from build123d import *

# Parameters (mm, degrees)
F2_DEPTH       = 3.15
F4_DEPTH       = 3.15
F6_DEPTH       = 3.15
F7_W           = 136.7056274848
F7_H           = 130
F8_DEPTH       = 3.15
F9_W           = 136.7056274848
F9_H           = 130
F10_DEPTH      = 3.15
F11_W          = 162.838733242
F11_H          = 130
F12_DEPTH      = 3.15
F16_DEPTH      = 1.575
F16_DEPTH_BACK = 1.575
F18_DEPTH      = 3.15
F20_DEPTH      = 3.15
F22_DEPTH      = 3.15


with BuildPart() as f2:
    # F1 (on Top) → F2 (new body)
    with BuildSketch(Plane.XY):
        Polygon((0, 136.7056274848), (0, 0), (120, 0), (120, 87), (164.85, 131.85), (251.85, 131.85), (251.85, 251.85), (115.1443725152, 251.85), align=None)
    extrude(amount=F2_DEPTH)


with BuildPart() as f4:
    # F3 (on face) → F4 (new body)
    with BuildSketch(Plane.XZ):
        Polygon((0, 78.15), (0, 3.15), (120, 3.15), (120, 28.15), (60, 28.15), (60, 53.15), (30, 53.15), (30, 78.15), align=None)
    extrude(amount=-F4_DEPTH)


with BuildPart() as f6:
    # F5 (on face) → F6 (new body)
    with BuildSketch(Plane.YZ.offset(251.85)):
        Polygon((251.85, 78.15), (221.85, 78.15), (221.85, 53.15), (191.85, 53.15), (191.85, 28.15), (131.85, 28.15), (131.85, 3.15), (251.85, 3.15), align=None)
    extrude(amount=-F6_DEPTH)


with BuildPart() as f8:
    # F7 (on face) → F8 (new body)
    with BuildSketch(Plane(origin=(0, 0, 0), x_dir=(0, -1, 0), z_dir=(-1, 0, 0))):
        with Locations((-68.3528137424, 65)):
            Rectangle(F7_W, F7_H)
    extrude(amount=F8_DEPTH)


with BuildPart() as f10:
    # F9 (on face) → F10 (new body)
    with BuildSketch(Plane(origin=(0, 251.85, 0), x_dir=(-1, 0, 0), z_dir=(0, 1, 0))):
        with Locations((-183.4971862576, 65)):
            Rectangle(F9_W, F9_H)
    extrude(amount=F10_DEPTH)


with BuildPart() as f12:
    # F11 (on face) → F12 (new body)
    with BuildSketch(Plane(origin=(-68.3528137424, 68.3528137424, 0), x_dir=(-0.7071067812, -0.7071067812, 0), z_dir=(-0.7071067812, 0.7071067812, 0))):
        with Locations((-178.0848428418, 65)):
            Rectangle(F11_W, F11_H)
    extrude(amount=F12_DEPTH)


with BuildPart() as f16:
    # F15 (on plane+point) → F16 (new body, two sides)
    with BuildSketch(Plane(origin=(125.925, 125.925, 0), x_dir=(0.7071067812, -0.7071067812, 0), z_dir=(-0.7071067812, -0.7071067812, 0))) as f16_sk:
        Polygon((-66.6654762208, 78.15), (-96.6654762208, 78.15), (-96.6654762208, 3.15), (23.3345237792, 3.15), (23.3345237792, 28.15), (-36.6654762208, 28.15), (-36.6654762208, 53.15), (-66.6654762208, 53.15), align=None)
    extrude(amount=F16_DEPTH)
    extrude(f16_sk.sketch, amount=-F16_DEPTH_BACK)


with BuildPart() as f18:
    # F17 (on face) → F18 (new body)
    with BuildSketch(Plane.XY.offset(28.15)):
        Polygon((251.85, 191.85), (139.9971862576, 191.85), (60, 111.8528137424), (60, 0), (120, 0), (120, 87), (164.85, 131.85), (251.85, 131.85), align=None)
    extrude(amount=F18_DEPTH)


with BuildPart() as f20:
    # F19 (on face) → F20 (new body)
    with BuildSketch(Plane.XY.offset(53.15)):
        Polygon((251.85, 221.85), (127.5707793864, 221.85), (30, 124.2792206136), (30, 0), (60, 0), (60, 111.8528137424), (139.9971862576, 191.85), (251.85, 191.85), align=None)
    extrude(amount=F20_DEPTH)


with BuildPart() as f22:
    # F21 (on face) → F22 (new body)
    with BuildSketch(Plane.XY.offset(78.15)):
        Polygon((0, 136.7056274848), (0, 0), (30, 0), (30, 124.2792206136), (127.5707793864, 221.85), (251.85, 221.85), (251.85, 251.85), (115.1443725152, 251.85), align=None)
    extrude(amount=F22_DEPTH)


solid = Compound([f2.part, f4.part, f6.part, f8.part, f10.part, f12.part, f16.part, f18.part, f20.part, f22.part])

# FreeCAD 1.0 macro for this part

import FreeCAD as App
import Part
import Sketcher
from FreeCAD import Vector

doc = App.newDocument("Part")
body = doc.addObject("PartDesign::Body", "Body")

# Sketch on XY plane
sketch1 = body.newObject("Sketcher::SketchObject", "Sketch")
sketch1.AttachmentSupport = (doc.getObject("XY_Plane"), [""])
sketch1.MapMode = "FlatFace"
sketch1.addGeometry([
    Part.LineSegment(Vector(0, 137, 0), Vector(0, 0, 0)),  # 0
    Part.LineSegment(Vector(0, 0, 0), Vector(120, 0, 0)),  # 1
    Part.LineSegment(Vector(120, 0, 0), Vector(120, 87, 0)),  # 2
    Part.LineSegment(Vector(120, 87, 0), Vector(165, 132, 0)),  # 3
    Part.LineSegment(Vector(165, 132, 0), Vector(252, 132, 0)),  # 4
    Part.LineSegment(Vector(252, 132, 0), Vector(252, 252, 0)),  # 5
    Part.LineSegment(Vector(252, 252, 0), Vector(115, 252, 0)),  # 6
    Part.LineSegment(Vector(115, 252, 0), Vector(0, 137, 0)),  # 7
], False)
sketch1.addConstraint([
    Sketcher.Constraint("Coincident", 0, 2, 1, 1),
    Sketcher.Constraint("Coincident", 1, 2, 2, 1),
    Sketcher.Constraint("Coincident", 2, 2, 3, 1),
    Sketcher.Constraint("Coincident", 3, 2, 4, 1),
    Sketcher.Constraint("Coincident", 4, 2, 5, 1),
    Sketcher.Constraint("Coincident", 5, 2, 6, 1),
    Sketcher.Constraint("Coincident", 6, 2, 7, 1),
    Sketcher.Constraint("Coincident", 7, 2, 0, 1),
    Sketcher.Constraint("Vertical", 0),
    Sketcher.Constraint("Horizontal", 1),
    Sketcher.Constraint("Vertical", 2),
    Sketcher.Constraint("Horizontal", 4),
    Sketcher.Constraint("Vertical", 5),
    Sketcher.Constraint("Horizontal", 6),
    Sketcher.Constraint("Coincident", 0, 2, -1, 1),
    Sketcher.Constraint("Parallel", 3, 7),
    Sketcher.Constraint("Equal", 6, 0),
    Sketcher.Constraint("Equal", 4, 2),
    Sketcher.Constraint("Equal", 1, 5),
    Sketcher.Constraint("DistanceX", 1, 1, 1, 2, 120.0),
    Sketcher.Constraint("DistanceX", 4, 1, 4, 2, 87.0),
    Sketcher.Constraint("DistanceX", -1, 1, 3, 2, 164.85),
    Sketcher.Constraint("DistanceX", 6, 2, 6, 1, 136.705627),
])
pad1 = body.newObject("PartDesign::Pad", "Pad")
pad1.Profile = sketch1
pad1.Length = 3.15
body2 = doc.addObject("PartDesign::Body", "Body001")

# Sketch on XZ plane
sketch2 = body2.newObject("Sketcher::SketchObject", "Sketch001")
sketch2.AttachmentSupport = (doc.getObject("XZ_Plane001"), [""])
sketch2.MapMode = "FlatFace"
sketch2.addGeometry([
    Part.LineSegment(Vector(0, 78, 0), Vector(0, 3, 0)),  # 0
    Part.LineSegment(Vector(0, 3, 0), Vector(120, 3, 0)),  # 1
    Part.LineSegment(Vector(120, 3, 0), Vector(120, 28, 0)),  # 2
    Part.LineSegment(Vector(120, 28, 0), Vector(60, 28, 0)),  # 3
    Part.LineSegment(Vector(60, 28, 0), Vector(60, 53, 0)),  # 4
    Part.LineSegment(Vector(60, 53, 0), Vector(30, 53, 0)),  # 5
    Part.LineSegment(Vector(30, 53, 0), Vector(30, 78, 0)),  # 6
    Part.LineSegment(Vector(30, 78, 0), Vector(0, 78, 0)),  # 7
], False)
sketch2.addConstraint([
    Sketcher.Constraint("Coincident", 0, 2, 1, 1),
    Sketcher.Constraint("Coincident", 1, 2, 2, 1),
    Sketcher.Constraint("Coincident", 2, 2, 3, 1),
    Sketcher.Constraint("Coincident", 3, 2, 4, 1),
    Sketcher.Constraint("Coincident", 4, 2, 5, 1),
    Sketcher.Constraint("Coincident", 5, 2, 6, 1),
    Sketcher.Constraint("Coincident", 6, 2, 7, 1),
    Sketcher.Constraint("Coincident", 7, 2, 0, 1),
    Sketcher.Constraint("Vertical", 0),
    Sketcher.Constraint("Horizontal", 1),
    Sketcher.Constraint("Vertical", 2),
    Sketcher.Constraint("Horizontal", 3),
    Sketcher.Constraint("Vertical", 4),
    Sketcher.Constraint("Horizontal", 5),
    Sketcher.Constraint("Vertical", 6),
    Sketcher.Constraint("Horizontal", 7),
    Sketcher.Constraint("PointOnObject", 0, 2, -2),
    Sketcher.Constraint("Equal", 5, 7),
    Sketcher.Constraint("Equal", 2, 4),
    Sketcher.Constraint("Equal", 4, 6),
    Sketcher.Constraint("DistanceX", 1, 1, 1, 2, 120.0),
    Sketcher.Constraint("DistanceX", 3, 2, 3, 1, 60.0),
    Sketcher.Constraint("DistanceY", 0, 2, 0, 1, 75.0),
    Sketcher.Constraint("DistanceY", -1, 1, 0, 2, 3.15),
])
pad2 = body2.newObject("PartDesign::Pad", "Pad001")
pad2.Profile = sketch2
pad2.Length = 3.15
pad2.Reversed = True
body3 = doc.addObject("PartDesign::Body", "Body002")

# Sketch on YZ plane
sketch3 = body3.newObject("Sketcher::SketchObject", "Sketch002")
sketch3.AttachmentSupport = (doc.getObject("YZ_Plane002"), [""])
sketch3.MapMode = "FlatFace"
sketch3.AttachmentOffset = App.Placement(Vector(0, 0, 251.85), App.Rotation())
sketch3.addGeometry([
    Part.LineSegment(Vector(252, 78, 0), Vector(222, 78, 0)),  # 0
    Part.LineSegment(Vector(222, 78, 0), Vector(222, 53, 0)),  # 1
    Part.LineSegment(Vector(222, 53, 0), Vector(192, 53, 0)),  # 2
    Part.LineSegment(Vector(192, 53, 0), Vector(192, 28, 0)),  # 3
    Part.LineSegment(Vector(192, 28, 0), Vector(132, 28, 0)),  # 4
    Part.LineSegment(Vector(132, 28, 0), Vector(132, 3, 0)),  # 5
    Part.LineSegment(Vector(132, 3, 0), Vector(252, 3, 0)),  # 6
    Part.LineSegment(Vector(252, 3, 0), Vector(252, 78, 0)),  # 7
], False)
sketch3.addConstraint([
    Sketcher.Constraint("Coincident", 0, 2, 1, 1),
    Sketcher.Constraint("Coincident", 1, 2, 2, 1),
    Sketcher.Constraint("Coincident", 2, 2, 3, 1),
    Sketcher.Constraint("Coincident", 3, 2, 4, 1),
    Sketcher.Constraint("Coincident", 4, 2, 5, 1),
    Sketcher.Constraint("Coincident", 5, 2, 6, 1),
    Sketcher.Constraint("Coincident", 6, 2, 7, 1),
    Sketcher.Constraint("Coincident", 7, 2, 0, 1),
    Sketcher.Constraint("Horizontal", 0),
    Sketcher.Constraint("Vertical", 1),
    Sketcher.Constraint("Horizontal", 2),
    Sketcher.Constraint("Vertical", 3),
    Sketcher.Constraint("Horizontal", 4),
    Sketcher.Constraint("Vertical", 5),
    Sketcher.Constraint("Horizontal", 6),
    Sketcher.Constraint("Vertical", 7),
    Sketcher.Constraint("Equal", 0, 2),
    Sketcher.Constraint("Equal", 1, 3),
    Sketcher.Constraint("Equal", 3, 5),
    Sketcher.Constraint("DistanceX", 0, 2, 0, 1, 30.0),
    Sketcher.Constraint("DistanceX", 4, 2, 4, 1, 60.0),
    Sketcher.Constraint("DistanceY", 1, 2, 1, 1, 25.0),
    Sketcher.Constraint("DistanceX", -1, 1, 0, 2, 221.85),
    Sketcher.Constraint("DistanceY", -1, 1, 0, 2, 78.15),
])
pad3 = body3.newObject("PartDesign::Pad", "Pad002")
pad3.Profile = sketch3
pad3.Length = 3.15
pad3.Reversed = True
body4 = doc.addObject("PartDesign::Body", "Body003")

# Sketch on YZ plane
sketch4 = body4.newObject("Sketcher::SketchObject", "Sketch003")
sketch4.AttachmentSupport = (doc.getObject("YZ_Plane003"), [""])
sketch4.MapMode = "FlatFace"
sketch4.addGeometry([
    Part.LineSegment(Vector(137, 130, 0), Vector(137, 0, 0)),
    Part.LineSegment(Vector(137, 0, 0), Vector(0, 0, 0)),
    Part.LineSegment(Vector(0, 0, 0), Vector(0, 130, 0)),
    Part.LineSegment(Vector(0, 130, 0), Vector(137, 130, 0)),
], False)
sketch4.addConstraint([
    Sketcher.Constraint("Coincident", 0, 2, 1, 1),
    Sketcher.Constraint("Coincident", 1, 2, 2, 1),
    Sketcher.Constraint("Coincident", 2, 2, 3, 1),
    Sketcher.Constraint("Coincident", 3, 2, 0, 1),
    Sketcher.Constraint("Vertical", 0),
    Sketcher.Constraint("Horizontal", 1),
    Sketcher.Constraint("Vertical", 2),
    Sketcher.Constraint("Horizontal", 3),
    Sketcher.Constraint("Coincident", 1, 2, -1, 1),
    Sketcher.Constraint("DistanceY", 0, 2, 0, 1, 130.0),
    Sketcher.Constraint("DistanceX", 1, 2, 1, 1, 136.705627),
])
pad4 = body4.newObject("PartDesign::Pad", "Pad003")
pad4.Profile = sketch4
pad4.Length = 3.15
pad4.Reversed = True
body5 = doc.addObject("PartDesign::Body", "Body004")

# Sketch on XZ plane
sketch5 = body5.newObject("Sketcher::SketchObject", "Sketch004")
sketch5.AttachmentSupport = (doc.getObject("XZ_Plane004"), [""])
sketch5.MapMode = "FlatFace"
sketch5.AttachmentOffset = App.Placement(Vector(0, 0, -251.85), App.Rotation())
sketch5.addGeometry([
    Part.LineSegment(Vector(252, 130, 0), Vector(252, 0, 0)),
    Part.LineSegment(Vector(252, 0, 0), Vector(115, 0, 0)),
    Part.LineSegment(Vector(115, 0, 0), Vector(115, 130, 0)),
    Part.LineSegment(Vector(115, 130, 0), Vector(252, 130, 0)),
], False)
sketch5.addConstraint([
    Sketcher.Constraint("Coincident", 0, 2, 1, 1),
    Sketcher.Constraint("Coincident", 1, 2, 2, 1),
    Sketcher.Constraint("Coincident", 2, 2, 3, 1),
    Sketcher.Constraint("Coincident", 3, 2, 0, 1),
    Sketcher.Constraint("Vertical", 0),
    Sketcher.Constraint("Horizontal", 1),
    Sketcher.Constraint("Vertical", 2),
    Sketcher.Constraint("Horizontal", 3),
    Sketcher.Constraint("PointOnObject", 0, 2, -1),
    Sketcher.Constraint("DistanceY", 0, 2, 0, 1, 130.0),
    Sketcher.Constraint("DistanceX", -1, 1, 0, 2, 251.85),
    Sketcher.Constraint("DistanceX", 1, 2, 1, 1, 136.705627),
])
pad5 = body5.newObject("PartDesign::Pad", "Pad004")
pad5.Profile = sketch5
pad5.Length = 3.15
pad5.Reversed = True
body6 = doc.addObject("PartDesign::Body", "Body005")

# Sketch on an angled plane
sketch6 = body6.newObject("Sketcher::SketchObject", "Sketch005")
sketch6.Placement = App.Placement(Vector(-68.352814, 68.352814, 0), App.Rotation(Vector(-0.707106781, -0.707106781, 0), Vector(0, 0, 0.999999999), Vector(-0.707106781, 0.707106781, 0), "ZXY"))
sketch6.addGeometry([
    Part.LineSegment(Vector(-260, 130, 0), Vector(-260, 0, 0)),
    Part.LineSegment(Vector(-260, 0, 0), Vector(-97, 0, 0)),
    Part.LineSegment(Vector(-97, 0, 0), Vector(-97, 130, 0)),
    Part.LineSegment(Vector(-97, 130, 0), Vector(-260, 130, 0)),
], False)
sketch6.addConstraint([
    Sketcher.Constraint("Coincident", 0, 2, 1, 1),
    Sketcher.Constraint("Coincident", 1, 2, 2, 1),
    Sketcher.Constraint("Coincident", 2, 2, 3, 1),
    Sketcher.Constraint("Coincident", 3, 2, 0, 1),
    Sketcher.Constraint("Vertical", 0),
    Sketcher.Constraint("Horizontal", 1),
    Sketcher.Constraint("Vertical", 2),
    Sketcher.Constraint("Horizontal", 3),
    Sketcher.Constraint("PointOnObject", 0, 2, -1),
    Sketcher.Constraint("DistanceY", 0, 2, 0, 1, 130.0),
    Sketcher.Constraint("DistanceX", 1, 1, 1, 2, 162.838733),
    Sketcher.Constraint("DistanceX", 0, 2, -1, 1, 259.504209),
])
pad6 = body6.newObject("PartDesign::Pad", "Pad005")
pad6.Profile = sketch6
pad6.Length = 3.15
body7 = doc.addObject("PartDesign::Body", "Body006")

# Sketch on an angled plane
sketch7 = body7.newObject("Sketcher::SketchObject", "Sketch006")
sketch7.Placement = App.Placement(Vector(125.925, 125.925, 0), App.Rotation(Vector(0.707106781, -0.707106781, 0), Vector(0, 0, 0.999999999), Vector(-0.707106781, -0.707106781, 0), "ZXY"))
sketch7.addGeometry([
    Part.LineSegment(Vector(-67, 78, 0), Vector(-97, 78, 0)),  # 0
    Part.LineSegment(Vector(-97, 78, 0), Vector(-97, 3, 0)),  # 1
    Part.LineSegment(Vector(-97, 3, 0), Vector(23, 3, 0)),  # 2
    Part.LineSegment(Vector(23, 3, 0), Vector(23, 28, 0)),  # 3
    Part.LineSegment(Vector(23, 28, 0), Vector(-37, 28, 0)),  # 4
    Part.LineSegment(Vector(-37, 28, 0), Vector(-37, 53, 0)),  # 5
    Part.LineSegment(Vector(-37, 53, 0), Vector(-67, 53, 0)),  # 6
    Part.LineSegment(Vector(-67, 53, 0), Vector(-67, 78, 0)),  # 7
], False)
sketch7.addConstraint([
    Sketcher.Constraint("Coincident", 0, 2, 1, 1),
    Sketcher.Constraint("Coincident", 1, 2, 2, 1),
    Sketcher.Constraint("Coincident", 2, 2, 3, 1),
    Sketcher.Constraint("Coincident", 3, 2, 4, 1),
    Sketcher.Constraint("Coincident", 4, 2, 5, 1),
    Sketcher.Constraint("Coincident", 5, 2, 6, 1),
    Sketcher.Constraint("Coincident", 6, 2, 7, 1),
    Sketcher.Constraint("Coincident", 7, 2, 0, 1),
    Sketcher.Constraint("Horizontal", 0),
    Sketcher.Constraint("Vertical", 1),
    Sketcher.Constraint("Horizontal", 2),
    Sketcher.Constraint("Vertical", 3),
    Sketcher.Constraint("Horizontal", 4),
    Sketcher.Constraint("Vertical", 5),
    Sketcher.Constraint("Horizontal", 6),
    Sketcher.Constraint("Vertical", 7),
    Sketcher.Constraint("Equal", 0, 6),
    Sketcher.Constraint("Equal", 3, 5),
    Sketcher.Constraint("Equal", 5, 7),
    Sketcher.Constraint("DistanceX", 0, 2, 0, 1, 30.0),
    Sketcher.Constraint("DistanceX", 2, 1, 2, 2, 120.0),
    Sketcher.Constraint("DistanceY", 1, 2, 1, 1, 75.0),
    Sketcher.Constraint("DistanceY", -1, 1, 0, 2, 78.15),
    Sketcher.Constraint("DistanceX", 0, 2, -1, 1, 96.665476),
])
pad7 = body7.newObject("PartDesign::Pad", "Pad006")
pad7.Profile = sketch7
pad7.Type = "TwoLengths"
pad7.Length = 1.575
pad7.Length2 = 1.575
body8 = doc.addObject("PartDesign::Body", "Body007")

# Sketch on XY plane
sketch8 = body8.newObject("Sketcher::SketchObject", "Sketch007")
sketch8.AttachmentSupport = (doc.getObject("XY_Plane007"), [""])
sketch8.MapMode = "FlatFace"
sketch8.AttachmentOffset = App.Placement(Vector(0, 0, 28.15), App.Rotation())
sketch8.addGeometry([
    Part.LineSegment(Vector(252, 192, 0), Vector(140, 192, 0)),  # 0
    Part.LineSegment(Vector(140, 192, 0), Vector(60, 112, 0)),  # 1
    Part.LineSegment(Vector(60, 112, 0), Vector(60, 0, 0)),  # 2
    Part.LineSegment(Vector(60, 0, 0), Vector(120, 0, 0)),  # 3
    Part.LineSegment(Vector(120, 0, 0), Vector(120, 87, 0)),  # 4
    Part.LineSegment(Vector(120, 87, 0), Vector(165, 132, 0)),  # 5
    Part.LineSegment(Vector(165, 132, 0), Vector(252, 132, 0)),  # 6
    Part.LineSegment(Vector(252, 132, 0), Vector(252, 192, 0)),  # 7
], False)
sketch8.addConstraint([
    Sketcher.Constraint("Coincident", 0, 2, 1, 1),
    Sketcher.Constraint("Coincident", 1, 2, 2, 1),
    Sketcher.Constraint("Coincident", 2, 2, 3, 1),
    Sketcher.Constraint("Coincident", 3, 2, 4, 1),
    Sketcher.Constraint("Coincident", 4, 2, 5, 1),
    Sketcher.Constraint("Coincident", 5, 2, 6, 1),
    Sketcher.Constraint("Coincident", 6, 2, 7, 1),
    Sketcher.Constraint("Coincident", 7, 2, 0, 1),
    Sketcher.Constraint("Horizontal", 0),
    Sketcher.Constraint("Vertical", 2),
    Sketcher.Constraint("Horizontal", 3),
    Sketcher.Constraint("Vertical", 4),
    Sketcher.Constraint("Horizontal", 6),
    Sketcher.Constraint("Vertical", 7),
    Sketcher.Constraint("PointOnObject", 2, 2, -1),
    Sketcher.Constraint("Parallel", 1, 5),
    Sketcher.Constraint("Equal", 0, 2),
    Sketcher.Constraint("Equal", 6, 4),
    Sketcher.Constraint("Equal", 3, 7),
    Sketcher.Constraint("DistanceX", 3, 1, 3, 2, 60.0),
    Sketcher.Constraint("DistanceX", 6, 1, 6, 2, 87.0),
    Sketcher.Constraint("DistanceX", -1, 1, 1, 2, 60.0),
    Sketcher.Constraint("DistanceY", -1, 1, 0, 2, 191.85),
    Sketcher.Constraint("DistanceX", 0, 2, 0, 1, 111.852814),
])
pad8 = body8.newObject("PartDesign::Pad", "Pad007")
pad8.Profile = sketch8
pad8.Length = 3.15
body9 = doc.addObject("PartDesign::Body", "Body008")

# Sketch on XY plane
sketch9 = body9.newObject("Sketcher::SketchObject", "Sketch008")
sketch9.AttachmentSupport = (doc.getObject("XY_Plane008"), [""])
sketch9.MapMode = "FlatFace"
sketch9.AttachmentOffset = App.Placement(Vector(0, 0, 53.15), App.Rotation())
sketch9.addGeometry([
    Part.LineSegment(Vector(252, 222, 0), Vector(128, 222, 0)),  # 0
    Part.LineSegment(Vector(128, 222, 0), Vector(30, 124, 0)),  # 1
    Part.LineSegment(Vector(30, 124, 0), Vector(30, 0, 0)),  # 2
    Part.LineSegment(Vector(30, 0, 0), Vector(60, 0, 0)),  # 3
    Part.LineSegment(Vector(60, 0, 0), Vector(60, 112, 0)),  # 4
    Part.LineSegment(Vector(60, 112, 0), Vector(140, 192, 0)),  # 5
    Part.LineSegment(Vector(140, 192, 0), Vector(252, 192, 0)),  # 6
    Part.LineSegment(Vector(252, 192, 0), Vector(252, 222, 0)),  # 7
], False)
sketch9.addConstraint([
    Sketcher.Constraint("Coincident", 0, 2, 1, 1),
    Sketcher.Constraint("Coincident", 1, 2, 2, 1),
    Sketcher.Constraint("Coincident", 2, 2, 3, 1),
    Sketcher.Constraint("Coincident", 3, 2, 4, 1),
    Sketcher.Constraint("Coincident", 4, 2, 5, 1),
    Sketcher.Constraint("Coincident", 5, 2, 6, 1),
    Sketcher.Constraint("Coincident", 6, 2, 7, 1),
    Sketcher.Constraint("Coincident", 7, 2, 0, 1),
    Sketcher.Constraint("Horizontal", 0),
    Sketcher.Constraint("Vertical", 2),
    Sketcher.Constraint("Horizontal", 3),
    Sketcher.Constraint("Vertical", 4),
    Sketcher.Constraint("Horizontal", 6),
    Sketcher.Constraint("Vertical", 7),
    Sketcher.Constraint("PointOnObject", 2, 2, -1),
    Sketcher.Constraint("Parallel", 1, 5),
    Sketcher.Constraint("Equal", 0, 2),
    Sketcher.Constraint("Equal", 6, 4),
    Sketcher.Constraint("Equal", 3, 7),
    Sketcher.Constraint("DistanceX", 3, 1, 3, 2, 30.0),
    Sketcher.Constraint("DistanceX", -1, 1, 1, 2, 30.0),
    Sketcher.Constraint("DistanceY", -1, 1, 0, 2, 221.85),
    Sketcher.Constraint("DistanceX", 0, 2, 0, 1, 124.279221),
    Sketcher.Constraint("DistanceX", 6, 1, 6, 2, 111.852814),
])
pad9 = body9.newObject("PartDesign::Pad", "Pad008")
pad9.Profile = sketch9
pad9.Length = 3.15
body10 = doc.addObject("PartDesign::Body", "Body009")

# Sketch on XY plane
sketch10 = body10.newObject("Sketcher::SketchObject", "Sketch009")
sketch10.AttachmentSupport = (doc.getObject("XY_Plane009"), [""])
sketch10.MapMode = "FlatFace"
sketch10.AttachmentOffset = App.Placement(Vector(0, 0, 78.15), App.Rotation())
sketch10.addGeometry([
    Part.LineSegment(Vector(0, 137, 0), Vector(0, 0, 0)),  # 0
    Part.LineSegment(Vector(0, 0, 0), Vector(30, 0, 0)),  # 1
    Part.LineSegment(Vector(30, 0, 0), Vector(30, 124, 0)),  # 2
    Part.LineSegment(Vector(30, 124, 0), Vector(128, 222, 0)),  # 3
    Part.LineSegment(Vector(128, 222, 0), Vector(252, 222, 0)),  # 4
    Part.LineSegment(Vector(252, 222, 0), Vector(252, 252, 0)),  # 5
    Part.LineSegment(Vector(252, 252, 0), Vector(115, 252, 0)),  # 6
    Part.LineSegment(Vector(115, 252, 0), Vector(0, 137, 0)),  # 7
], False)
sketch10.addConstraint([
    Sketcher.Constraint("Coincident", 0, 2, 1, 1),
    Sketcher.Constraint("Coincident", 1, 2, 2, 1),
    Sketcher.Constraint("Coincident", 2, 2, 3, 1),
    Sketcher.Constraint("Coincident", 3, 2, 4, 1),
    Sketcher.Constraint("Coincident", 4, 2, 5, 1),
    Sketcher.Constraint("Coincident", 5, 2, 6, 1),
    Sketcher.Constraint("Coincident", 6, 2, 7, 1),
    Sketcher.Constraint("Coincident", 7, 2, 0, 1),
    Sketcher.Constraint("Vertical", 0),
    Sketcher.Constraint("Horizontal", 1),
    Sketcher.Constraint("Vertical", 2),
    Sketcher.Constraint("Horizontal", 4),
    Sketcher.Constraint("Vertical", 5),
    Sketcher.Constraint("Horizontal", 6),
    Sketcher.Constraint("Coincident", 0, 2, -1, 1),
    Sketcher.Constraint("Parallel", 3, 7),
    Sketcher.Constraint("Equal", 6, 0),
    Sketcher.Constraint("Equal", 4, 2),
    Sketcher.Constraint("Equal", 1, 5),
    Sketcher.Constraint("DistanceX", 1, 1, 1, 2, 30.0),
    Sketcher.Constraint("DistanceY", -1, 1, 3, 2, 221.85),
    Sketcher.Constraint("DistanceX", 4, 1, 4, 2, 124.279221),
    Sketcher.Constraint("DistanceX", 6, 2, 6, 1, 136.705627),
])
pad10 = body10.newObject("PartDesign::Pad", "Pad009")
pad10.Profile = sketch10
pad10.Length = 3.15

doc.recompute()
